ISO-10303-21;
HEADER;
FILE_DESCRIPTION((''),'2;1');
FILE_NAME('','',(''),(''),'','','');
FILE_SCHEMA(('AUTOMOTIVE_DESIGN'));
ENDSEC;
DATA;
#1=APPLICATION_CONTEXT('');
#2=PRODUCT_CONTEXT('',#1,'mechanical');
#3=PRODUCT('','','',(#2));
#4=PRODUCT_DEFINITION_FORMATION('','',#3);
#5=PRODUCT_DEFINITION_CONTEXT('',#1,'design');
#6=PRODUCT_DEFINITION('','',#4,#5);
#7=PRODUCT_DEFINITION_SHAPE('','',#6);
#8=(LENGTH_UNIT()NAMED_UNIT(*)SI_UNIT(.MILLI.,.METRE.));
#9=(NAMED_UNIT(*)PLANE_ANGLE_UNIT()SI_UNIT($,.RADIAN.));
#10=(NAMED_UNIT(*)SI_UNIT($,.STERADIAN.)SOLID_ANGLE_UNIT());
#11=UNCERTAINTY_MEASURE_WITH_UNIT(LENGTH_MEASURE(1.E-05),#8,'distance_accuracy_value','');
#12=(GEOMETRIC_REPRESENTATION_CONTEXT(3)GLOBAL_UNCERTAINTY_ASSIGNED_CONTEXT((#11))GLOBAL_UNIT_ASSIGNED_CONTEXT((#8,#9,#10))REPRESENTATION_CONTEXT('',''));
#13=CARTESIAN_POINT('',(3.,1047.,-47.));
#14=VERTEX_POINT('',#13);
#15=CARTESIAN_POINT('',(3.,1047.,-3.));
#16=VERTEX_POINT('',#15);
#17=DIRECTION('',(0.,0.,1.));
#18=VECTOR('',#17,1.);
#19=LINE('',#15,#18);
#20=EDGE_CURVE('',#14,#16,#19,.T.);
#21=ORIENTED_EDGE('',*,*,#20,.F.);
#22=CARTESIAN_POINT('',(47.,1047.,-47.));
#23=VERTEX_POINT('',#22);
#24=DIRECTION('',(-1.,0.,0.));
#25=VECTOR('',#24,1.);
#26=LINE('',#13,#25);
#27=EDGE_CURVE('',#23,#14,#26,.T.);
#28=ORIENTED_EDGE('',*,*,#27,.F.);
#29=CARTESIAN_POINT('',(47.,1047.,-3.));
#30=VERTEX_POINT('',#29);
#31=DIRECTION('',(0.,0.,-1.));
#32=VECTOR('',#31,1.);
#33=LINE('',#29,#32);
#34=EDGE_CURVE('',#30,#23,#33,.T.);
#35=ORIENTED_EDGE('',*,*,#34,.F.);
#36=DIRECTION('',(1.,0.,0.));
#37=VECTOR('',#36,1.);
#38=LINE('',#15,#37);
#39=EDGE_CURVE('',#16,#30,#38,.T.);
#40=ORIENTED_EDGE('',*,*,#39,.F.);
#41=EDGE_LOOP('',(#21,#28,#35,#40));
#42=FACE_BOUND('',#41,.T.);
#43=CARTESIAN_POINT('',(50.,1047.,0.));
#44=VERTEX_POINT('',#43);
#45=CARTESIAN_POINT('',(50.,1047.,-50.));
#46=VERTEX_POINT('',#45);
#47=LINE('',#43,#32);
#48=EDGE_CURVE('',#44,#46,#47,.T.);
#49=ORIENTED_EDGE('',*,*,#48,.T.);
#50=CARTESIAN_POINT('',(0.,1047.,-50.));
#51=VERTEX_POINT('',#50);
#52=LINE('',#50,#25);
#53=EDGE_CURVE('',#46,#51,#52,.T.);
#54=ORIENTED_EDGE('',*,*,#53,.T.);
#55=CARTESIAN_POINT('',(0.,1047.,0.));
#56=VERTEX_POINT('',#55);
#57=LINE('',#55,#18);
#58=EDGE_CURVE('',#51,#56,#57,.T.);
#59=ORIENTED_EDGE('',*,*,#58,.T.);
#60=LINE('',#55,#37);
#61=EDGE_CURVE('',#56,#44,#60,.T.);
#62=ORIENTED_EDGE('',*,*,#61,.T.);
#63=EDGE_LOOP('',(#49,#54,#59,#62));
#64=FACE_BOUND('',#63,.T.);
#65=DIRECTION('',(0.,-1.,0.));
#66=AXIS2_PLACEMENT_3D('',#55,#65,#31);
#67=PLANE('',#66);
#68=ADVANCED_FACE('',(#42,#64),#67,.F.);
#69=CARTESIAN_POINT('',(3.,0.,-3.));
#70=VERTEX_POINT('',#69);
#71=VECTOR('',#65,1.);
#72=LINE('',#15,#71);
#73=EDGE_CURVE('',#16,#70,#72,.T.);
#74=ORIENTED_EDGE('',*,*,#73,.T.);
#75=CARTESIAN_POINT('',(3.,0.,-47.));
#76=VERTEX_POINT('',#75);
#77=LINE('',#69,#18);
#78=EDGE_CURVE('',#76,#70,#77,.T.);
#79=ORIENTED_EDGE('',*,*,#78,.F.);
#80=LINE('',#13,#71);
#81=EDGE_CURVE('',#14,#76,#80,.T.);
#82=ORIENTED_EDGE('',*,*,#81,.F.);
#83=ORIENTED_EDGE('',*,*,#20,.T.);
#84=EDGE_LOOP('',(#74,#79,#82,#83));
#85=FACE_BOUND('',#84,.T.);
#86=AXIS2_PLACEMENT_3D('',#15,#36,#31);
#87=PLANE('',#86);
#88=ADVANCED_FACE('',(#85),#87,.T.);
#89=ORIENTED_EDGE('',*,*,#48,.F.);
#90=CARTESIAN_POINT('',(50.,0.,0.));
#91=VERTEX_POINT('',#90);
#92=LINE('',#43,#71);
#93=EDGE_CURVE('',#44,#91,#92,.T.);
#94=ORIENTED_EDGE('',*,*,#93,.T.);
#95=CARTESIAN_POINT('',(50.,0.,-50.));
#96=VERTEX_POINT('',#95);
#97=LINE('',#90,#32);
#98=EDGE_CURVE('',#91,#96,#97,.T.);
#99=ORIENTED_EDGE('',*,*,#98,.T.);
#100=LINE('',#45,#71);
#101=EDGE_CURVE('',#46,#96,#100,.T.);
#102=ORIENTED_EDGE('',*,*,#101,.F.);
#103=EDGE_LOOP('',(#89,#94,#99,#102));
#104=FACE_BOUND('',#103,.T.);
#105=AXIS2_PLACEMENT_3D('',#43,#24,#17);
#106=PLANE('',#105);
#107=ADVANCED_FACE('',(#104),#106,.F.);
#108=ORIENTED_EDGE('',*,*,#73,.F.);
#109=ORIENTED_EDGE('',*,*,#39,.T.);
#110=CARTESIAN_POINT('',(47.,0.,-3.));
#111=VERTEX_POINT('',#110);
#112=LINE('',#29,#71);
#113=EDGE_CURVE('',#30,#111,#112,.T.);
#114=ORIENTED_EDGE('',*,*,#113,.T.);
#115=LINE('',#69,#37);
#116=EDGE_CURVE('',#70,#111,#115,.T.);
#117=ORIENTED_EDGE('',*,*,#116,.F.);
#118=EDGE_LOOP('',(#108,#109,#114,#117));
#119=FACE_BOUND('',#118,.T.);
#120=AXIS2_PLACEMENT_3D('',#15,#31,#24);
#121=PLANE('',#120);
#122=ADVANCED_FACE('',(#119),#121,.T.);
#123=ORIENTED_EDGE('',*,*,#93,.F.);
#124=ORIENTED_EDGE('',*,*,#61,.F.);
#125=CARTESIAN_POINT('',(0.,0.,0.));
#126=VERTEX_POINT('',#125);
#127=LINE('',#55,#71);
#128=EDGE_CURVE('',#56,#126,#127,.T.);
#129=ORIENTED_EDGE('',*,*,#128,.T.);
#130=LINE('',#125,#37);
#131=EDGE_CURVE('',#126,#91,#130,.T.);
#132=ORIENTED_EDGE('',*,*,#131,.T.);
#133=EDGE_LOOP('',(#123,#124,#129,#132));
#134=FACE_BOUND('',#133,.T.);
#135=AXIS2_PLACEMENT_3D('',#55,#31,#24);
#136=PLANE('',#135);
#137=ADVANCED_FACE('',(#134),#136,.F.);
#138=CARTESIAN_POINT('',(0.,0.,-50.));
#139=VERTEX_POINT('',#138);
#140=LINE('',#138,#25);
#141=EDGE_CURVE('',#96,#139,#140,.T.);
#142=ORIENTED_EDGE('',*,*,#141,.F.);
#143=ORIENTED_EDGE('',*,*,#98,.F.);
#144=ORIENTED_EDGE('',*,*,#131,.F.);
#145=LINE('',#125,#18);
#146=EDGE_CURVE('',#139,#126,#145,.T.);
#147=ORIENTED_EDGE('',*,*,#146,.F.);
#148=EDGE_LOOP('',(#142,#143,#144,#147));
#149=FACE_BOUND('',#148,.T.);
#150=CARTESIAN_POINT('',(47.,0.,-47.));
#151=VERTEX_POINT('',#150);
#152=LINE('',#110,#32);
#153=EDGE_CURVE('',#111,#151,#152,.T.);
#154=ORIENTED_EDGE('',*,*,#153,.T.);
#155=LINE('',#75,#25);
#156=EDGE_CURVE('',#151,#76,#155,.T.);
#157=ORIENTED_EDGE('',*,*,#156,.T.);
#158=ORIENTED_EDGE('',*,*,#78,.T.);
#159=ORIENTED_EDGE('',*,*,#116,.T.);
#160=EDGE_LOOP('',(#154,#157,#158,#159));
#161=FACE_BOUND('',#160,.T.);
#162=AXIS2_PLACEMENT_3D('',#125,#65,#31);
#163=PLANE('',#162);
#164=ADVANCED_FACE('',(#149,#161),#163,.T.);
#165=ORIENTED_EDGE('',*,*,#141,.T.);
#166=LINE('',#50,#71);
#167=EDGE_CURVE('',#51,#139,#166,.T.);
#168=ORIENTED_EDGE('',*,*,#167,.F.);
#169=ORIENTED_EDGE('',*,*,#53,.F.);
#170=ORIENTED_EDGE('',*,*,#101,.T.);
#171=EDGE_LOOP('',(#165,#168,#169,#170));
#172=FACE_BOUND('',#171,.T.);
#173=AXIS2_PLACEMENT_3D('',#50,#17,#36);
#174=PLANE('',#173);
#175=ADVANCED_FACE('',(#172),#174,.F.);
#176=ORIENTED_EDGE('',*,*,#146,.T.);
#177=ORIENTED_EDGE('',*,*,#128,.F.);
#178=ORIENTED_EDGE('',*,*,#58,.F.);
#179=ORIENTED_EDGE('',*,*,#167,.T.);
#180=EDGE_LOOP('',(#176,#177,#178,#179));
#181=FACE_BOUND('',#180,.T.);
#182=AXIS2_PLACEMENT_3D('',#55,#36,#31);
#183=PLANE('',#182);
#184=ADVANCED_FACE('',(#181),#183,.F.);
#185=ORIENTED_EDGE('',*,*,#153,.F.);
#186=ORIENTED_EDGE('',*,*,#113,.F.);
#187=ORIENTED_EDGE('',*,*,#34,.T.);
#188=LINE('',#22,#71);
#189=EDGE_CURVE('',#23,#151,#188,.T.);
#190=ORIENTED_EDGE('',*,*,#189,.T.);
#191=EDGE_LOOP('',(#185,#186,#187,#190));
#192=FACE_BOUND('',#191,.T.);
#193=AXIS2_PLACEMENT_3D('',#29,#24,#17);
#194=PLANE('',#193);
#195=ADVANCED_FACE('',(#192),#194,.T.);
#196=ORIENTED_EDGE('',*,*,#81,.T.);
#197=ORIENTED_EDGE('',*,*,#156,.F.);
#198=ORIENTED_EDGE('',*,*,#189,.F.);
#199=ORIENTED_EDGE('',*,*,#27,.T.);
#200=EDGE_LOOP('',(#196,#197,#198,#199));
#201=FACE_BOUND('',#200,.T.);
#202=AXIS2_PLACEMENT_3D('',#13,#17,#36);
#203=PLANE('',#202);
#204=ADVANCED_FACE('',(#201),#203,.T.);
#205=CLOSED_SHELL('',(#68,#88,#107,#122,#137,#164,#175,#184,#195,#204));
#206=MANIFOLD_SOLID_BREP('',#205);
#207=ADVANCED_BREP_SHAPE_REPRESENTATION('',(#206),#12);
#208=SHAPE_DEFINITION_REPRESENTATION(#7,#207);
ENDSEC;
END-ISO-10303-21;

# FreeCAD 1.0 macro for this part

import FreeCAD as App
import Part
import Sketcher

V = App.Vector
Q = App.Units.Quantity


def add_polygon(sketch, points):
    """Adds a closed chain of lines whose ends are joined by coincident constraints."""
    first, n = sketch.GeometryCount, len(points)
    for a, b in zip(points, points[1:] + points[:1]):
        sketch.addGeometry(Part.LineSegment(App.Vector(*a, 0), App.Vector(*b, 0)), False)
    for i in range(n):
        sketch.addConstraint(Sketcher.Constraint("Coincident", first + i, 2, first + (i + 1) % n, 1))

doc = App.newDocument("Part")
body = doc.addObject("PartDesign::Body", "Body")

sketch1 = doc.addObject("Sketcher::SketchObject", "Sketch")
body.addObject(sketch1)
sketch1.AttachmentSupport = (doc.XZ_Plane, [""])
sketch1.MapMode = "FlatFace"
add_polygon(sketch1, [(0, -50), (0, 0), (50, 0), (50, -50)])
add_polygon(sketch1, [(47, -3), (3, -3), (3, -47), (47, -47)])
sketch1.addConstraint([
    Sketcher.Constraint("Vertical", 0),
    Sketcher.Constraint("Horizontal", 1),
    Sketcher.Constraint("Vertical", 2),
    Sketcher.Constraint("Horizontal", 3),
    Sketcher.Constraint("Horizontal", 4),
    Sketcher.Constraint("Vertical", 5),
    Sketcher.Constraint("Horizontal", 6),
    Sketcher.Constraint("Vertical", 7),
    Sketcher.Constraint("Coincident", 0, 2, -1, 1),
    Sketcher.Constraint("Equal", 3, 0),
    Sketcher.Constraint("Equal", 6, 5),
    Sketcher.Constraint("DistanceX", 1, 1, 1, 2, Q("50 mm")),
    Sketcher.Constraint("DistanceX", 4, 2, 4, 1, Q("44 mm")),
    Sketcher.Constraint("DistanceX", -1, 1, 4, 2, Q("3 mm")),
    Sketcher.Constraint("DistanceY", 4, 2, -1, 1, Q("3 mm")),
])
pad1 = doc.addObject("PartDesign::Pad", "Pad")
body.addObject(pad1)
pad1.Profile = sketch1
pad1.Length = 1047
pad1.Reversed = True

doc.recompute()
